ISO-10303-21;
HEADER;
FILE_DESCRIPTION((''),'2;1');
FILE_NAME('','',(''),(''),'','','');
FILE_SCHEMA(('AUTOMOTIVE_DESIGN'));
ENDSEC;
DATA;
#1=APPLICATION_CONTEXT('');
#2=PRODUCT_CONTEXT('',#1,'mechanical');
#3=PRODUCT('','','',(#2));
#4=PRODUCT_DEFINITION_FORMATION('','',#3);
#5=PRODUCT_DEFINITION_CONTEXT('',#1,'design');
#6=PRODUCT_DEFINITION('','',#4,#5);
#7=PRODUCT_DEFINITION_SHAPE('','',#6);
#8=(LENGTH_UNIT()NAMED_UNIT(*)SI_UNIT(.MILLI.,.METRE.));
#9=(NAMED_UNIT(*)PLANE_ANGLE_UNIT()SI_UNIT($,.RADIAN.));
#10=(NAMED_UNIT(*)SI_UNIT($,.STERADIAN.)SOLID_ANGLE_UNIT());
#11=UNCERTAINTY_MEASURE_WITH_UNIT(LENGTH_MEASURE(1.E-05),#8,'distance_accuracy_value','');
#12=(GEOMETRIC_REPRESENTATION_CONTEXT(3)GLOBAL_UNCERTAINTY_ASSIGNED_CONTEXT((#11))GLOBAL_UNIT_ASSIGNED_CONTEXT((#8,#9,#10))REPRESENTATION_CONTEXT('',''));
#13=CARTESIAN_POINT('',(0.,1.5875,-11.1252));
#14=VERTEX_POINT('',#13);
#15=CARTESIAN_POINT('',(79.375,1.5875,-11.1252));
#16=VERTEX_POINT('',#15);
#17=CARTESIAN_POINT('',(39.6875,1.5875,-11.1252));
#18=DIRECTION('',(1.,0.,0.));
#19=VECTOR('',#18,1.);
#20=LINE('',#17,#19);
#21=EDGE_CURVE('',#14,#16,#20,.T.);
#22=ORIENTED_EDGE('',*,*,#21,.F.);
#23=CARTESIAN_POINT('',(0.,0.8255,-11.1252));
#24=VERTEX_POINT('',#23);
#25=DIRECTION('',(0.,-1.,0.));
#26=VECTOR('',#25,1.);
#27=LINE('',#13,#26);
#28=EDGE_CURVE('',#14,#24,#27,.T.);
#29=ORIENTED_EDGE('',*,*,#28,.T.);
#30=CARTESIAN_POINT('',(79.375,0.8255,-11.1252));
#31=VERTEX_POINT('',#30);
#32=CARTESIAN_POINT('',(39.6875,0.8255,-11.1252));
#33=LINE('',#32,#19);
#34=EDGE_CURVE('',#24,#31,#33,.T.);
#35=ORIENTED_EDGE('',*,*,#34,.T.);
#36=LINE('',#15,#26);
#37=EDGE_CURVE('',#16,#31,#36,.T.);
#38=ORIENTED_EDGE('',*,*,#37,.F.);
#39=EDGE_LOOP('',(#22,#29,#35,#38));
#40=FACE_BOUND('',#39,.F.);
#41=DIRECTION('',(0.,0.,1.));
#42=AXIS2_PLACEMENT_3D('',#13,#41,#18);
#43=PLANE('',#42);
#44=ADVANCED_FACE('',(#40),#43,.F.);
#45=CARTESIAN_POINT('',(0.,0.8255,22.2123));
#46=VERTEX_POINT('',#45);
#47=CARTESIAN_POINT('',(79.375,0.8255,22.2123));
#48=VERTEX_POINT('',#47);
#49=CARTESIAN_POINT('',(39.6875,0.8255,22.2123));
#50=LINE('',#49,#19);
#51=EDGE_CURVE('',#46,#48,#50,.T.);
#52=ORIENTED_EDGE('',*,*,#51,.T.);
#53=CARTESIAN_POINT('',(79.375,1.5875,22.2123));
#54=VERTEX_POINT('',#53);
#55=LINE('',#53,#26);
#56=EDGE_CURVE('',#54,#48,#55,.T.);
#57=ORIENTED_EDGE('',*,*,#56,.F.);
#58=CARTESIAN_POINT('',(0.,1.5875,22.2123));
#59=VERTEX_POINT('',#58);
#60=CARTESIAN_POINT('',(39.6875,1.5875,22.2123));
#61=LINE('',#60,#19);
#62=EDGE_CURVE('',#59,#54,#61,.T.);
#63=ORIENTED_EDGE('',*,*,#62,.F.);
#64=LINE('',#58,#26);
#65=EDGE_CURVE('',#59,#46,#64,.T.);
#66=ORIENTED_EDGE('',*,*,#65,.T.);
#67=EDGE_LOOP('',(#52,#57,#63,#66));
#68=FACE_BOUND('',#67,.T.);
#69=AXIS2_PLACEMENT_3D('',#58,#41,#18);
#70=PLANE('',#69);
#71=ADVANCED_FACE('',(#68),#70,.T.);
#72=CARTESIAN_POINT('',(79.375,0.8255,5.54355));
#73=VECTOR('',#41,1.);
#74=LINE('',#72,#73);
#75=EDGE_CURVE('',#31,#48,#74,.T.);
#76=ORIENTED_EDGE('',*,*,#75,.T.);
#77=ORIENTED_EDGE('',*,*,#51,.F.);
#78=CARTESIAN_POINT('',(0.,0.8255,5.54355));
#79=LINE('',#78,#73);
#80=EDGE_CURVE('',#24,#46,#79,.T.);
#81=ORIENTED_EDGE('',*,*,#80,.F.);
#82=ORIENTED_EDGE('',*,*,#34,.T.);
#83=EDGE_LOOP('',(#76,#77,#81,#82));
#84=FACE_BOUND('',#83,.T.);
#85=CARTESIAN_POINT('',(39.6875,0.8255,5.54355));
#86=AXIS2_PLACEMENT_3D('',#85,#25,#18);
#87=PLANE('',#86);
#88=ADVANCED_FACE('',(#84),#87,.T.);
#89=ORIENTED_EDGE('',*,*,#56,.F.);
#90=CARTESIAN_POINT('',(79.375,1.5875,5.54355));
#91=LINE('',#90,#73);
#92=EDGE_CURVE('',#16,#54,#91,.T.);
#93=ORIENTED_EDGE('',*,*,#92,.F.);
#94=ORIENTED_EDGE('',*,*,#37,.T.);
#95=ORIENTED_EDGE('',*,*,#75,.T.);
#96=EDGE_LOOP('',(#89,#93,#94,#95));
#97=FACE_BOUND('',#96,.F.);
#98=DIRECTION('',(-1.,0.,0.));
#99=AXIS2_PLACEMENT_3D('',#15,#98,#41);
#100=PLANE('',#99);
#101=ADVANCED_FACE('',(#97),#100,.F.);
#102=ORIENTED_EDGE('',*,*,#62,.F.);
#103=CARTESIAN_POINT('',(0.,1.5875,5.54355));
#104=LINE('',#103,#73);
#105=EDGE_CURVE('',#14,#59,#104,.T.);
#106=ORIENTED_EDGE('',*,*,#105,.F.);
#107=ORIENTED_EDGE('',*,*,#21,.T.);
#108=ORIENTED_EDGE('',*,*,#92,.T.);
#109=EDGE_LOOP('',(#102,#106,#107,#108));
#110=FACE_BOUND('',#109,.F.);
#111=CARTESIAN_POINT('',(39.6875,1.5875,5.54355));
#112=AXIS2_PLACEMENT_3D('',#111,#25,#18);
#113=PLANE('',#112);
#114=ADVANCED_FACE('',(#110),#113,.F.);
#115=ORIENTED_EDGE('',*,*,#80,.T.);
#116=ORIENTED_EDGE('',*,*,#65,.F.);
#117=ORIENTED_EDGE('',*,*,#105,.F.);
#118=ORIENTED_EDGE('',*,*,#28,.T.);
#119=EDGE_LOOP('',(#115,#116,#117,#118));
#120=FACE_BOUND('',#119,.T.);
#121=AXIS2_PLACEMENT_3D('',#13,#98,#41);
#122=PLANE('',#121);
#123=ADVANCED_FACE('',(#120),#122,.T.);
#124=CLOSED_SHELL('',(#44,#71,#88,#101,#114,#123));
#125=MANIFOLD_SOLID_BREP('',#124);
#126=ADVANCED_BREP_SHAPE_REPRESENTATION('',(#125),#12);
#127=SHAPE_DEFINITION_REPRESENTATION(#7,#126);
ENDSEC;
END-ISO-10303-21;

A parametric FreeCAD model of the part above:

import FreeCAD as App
import Part
import Sketcher
Q = App.Units.Quantity

doc = App.newDocument("Part")
body = doc.addObject("PartDesign::Body", "Body")

# Sketch on XZ plane
sketch1 = body.newObject("Sketcher::SketchObject", "Sketch")
sketch1.AttachmentSupport = (doc.getObject("XZ_Plane"), [""])
sketch1.MapMode = "FlatFace"
sketch1.addGeometry([
    Part.LineSegment(App.Vector(0, 33.3375, 0), App.Vector(0, 0, 0)),
    Part.LineSegment(App.Vector(0, 0, 0), App.Vector(79.375, 0, 0)),
    Part.LineSegment(App.Vector(79.375, 0, 0), App.Vector(79.375, 33.3375, 0)),
    Part.LineSegment(App.Vector(79.375, 33.3375, 0), App.Vector(0, 33.3375, 0)),
], False)
sketch1.addConstraint([
    Sketcher.Constraint("Coincident", 0, 2, 1, 1),
    Sketcher.Constraint("Coincident", 1, 2, 2, 1),
    Sketcher.Constraint("Coincident", 2, 2, 3, 1),
    Sketcher.Constraint("Coincident", 3, 2, 0, 1),
    Sketcher.Constraint("Vertical", 0),
    Sketcher.Constraint("Horizontal", 1),
    Sketcher.Constraint("Vertical", 2),
    Sketcher.Constraint("Horizontal", 3),
    Sketcher.Constraint("Coincident", 0, 2, -1, 1),
    Sketcher.Constraint("DistanceX", 1, 1, 1, 2, Q("3.125 in")),
    Sketcher.Constraint("DistanceY", 0, 2, 0, 1, Q("1.3125 in")),
])
pad1 = body.newObject("PartDesign::Pad", "Pad")
pad1.Profile = sketch1
pad1.Length = Q("0.03 in")
body2 = doc.addObject("PartDesign::Body", "Body001")
doc.recompute()

body.Placement = App.Placement(App.Vector(0, 0, -11.1252), App.Rotation(App.Vector(0, 0, 1), 0))
boolean = body2.newObject("PartDesign::Boolean", "Boolean")
boolean.Type = "Fuse"
boolean.addObjects([body])
body3 = doc.addObject("PartDesign::Body", "Body002")
doc.recompute()

body2.Placement = App.Placement(App.Vector(0, 1.5875, 0), App.Rotation(App.Vector(0, 0, 1), 0))
boolean2 = body3.newObject("PartDesign::Boolean", "Boolean001")
boolean2.Type = "Fuse"
boolean2.addObjects([body2])

doc.recompute()
